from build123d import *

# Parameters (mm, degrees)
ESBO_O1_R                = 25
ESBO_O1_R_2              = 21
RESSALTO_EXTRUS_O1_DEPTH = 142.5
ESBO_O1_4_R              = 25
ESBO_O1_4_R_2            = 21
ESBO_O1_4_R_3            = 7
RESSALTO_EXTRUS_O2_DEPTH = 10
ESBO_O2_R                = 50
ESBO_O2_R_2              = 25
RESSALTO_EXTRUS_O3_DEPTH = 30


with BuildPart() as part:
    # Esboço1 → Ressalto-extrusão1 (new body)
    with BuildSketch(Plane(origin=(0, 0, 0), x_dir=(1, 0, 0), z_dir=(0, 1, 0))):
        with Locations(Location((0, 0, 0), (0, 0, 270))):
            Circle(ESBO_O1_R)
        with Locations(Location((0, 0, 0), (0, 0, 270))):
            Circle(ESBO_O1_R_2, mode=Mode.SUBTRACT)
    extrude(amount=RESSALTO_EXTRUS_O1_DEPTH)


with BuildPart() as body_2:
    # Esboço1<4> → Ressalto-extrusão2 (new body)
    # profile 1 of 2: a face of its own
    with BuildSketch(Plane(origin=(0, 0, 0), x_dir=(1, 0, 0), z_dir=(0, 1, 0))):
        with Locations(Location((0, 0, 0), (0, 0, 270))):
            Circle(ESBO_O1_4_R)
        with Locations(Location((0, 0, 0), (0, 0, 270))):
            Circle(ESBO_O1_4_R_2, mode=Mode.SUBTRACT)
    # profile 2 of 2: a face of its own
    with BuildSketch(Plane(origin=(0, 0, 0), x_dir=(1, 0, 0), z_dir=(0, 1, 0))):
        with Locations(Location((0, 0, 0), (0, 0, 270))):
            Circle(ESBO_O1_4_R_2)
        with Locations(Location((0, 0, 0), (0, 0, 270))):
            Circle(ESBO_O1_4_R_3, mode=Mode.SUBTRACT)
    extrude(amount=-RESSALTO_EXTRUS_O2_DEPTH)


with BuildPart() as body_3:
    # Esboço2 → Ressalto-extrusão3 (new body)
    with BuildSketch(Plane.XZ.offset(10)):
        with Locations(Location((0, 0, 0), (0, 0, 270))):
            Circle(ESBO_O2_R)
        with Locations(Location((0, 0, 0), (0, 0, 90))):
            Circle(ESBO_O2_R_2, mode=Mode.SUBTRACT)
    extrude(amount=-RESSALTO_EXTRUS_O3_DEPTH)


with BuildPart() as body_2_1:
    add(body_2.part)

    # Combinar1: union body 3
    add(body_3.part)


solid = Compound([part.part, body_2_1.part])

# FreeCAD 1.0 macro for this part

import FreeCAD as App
import Part
import Sketcher

doc = App.newDocument("Part")
params = doc.addObject("Spreadsheet::Sheet", "Params")
for row, (alias, value) in enumerate([
    ("sketch1_diameter", "50 mm"),
    ("sketch1_diameter2", "42 mm"),
    ("pad1_length", "142.5 mm"),
    ("sketch2_diameter", "50 mm"),
    ("sketch2_diameter2", "14 mm"),
    ("pad2_length", "10 mm"),
    ("sketch3_diameter", "100 mm"),
    ("sketch3_diameter2", "50 mm"),
    ("pad3_length", "30 mm"),
], start=1):
    params.set(f"A{row}", alias)
    params.set(f"B{row}", "=" + value)
    params.setAlias(f"B{row}", alias)

body = doc.addObject("PartDesign::Body", "Body")

# Sketch on XZ plane
sketch1 = body.newObject("Sketcher::SketchObject", "Sketch")
sketch1.AttachmentSupport = (doc.getObject("XZ_Plane"), [""])
sketch1.MapMode = "FlatFace"
sketch1.addGeometry(Part.Circle(App.Vector(0, 0, 0), App.Vector(0, 0, 1), 25), False)
sketch1.addGeometry(Part.Circle(App.Vector(0, 0, 0), App.Vector(0, 0, 1), 21), False)
sketch1.addConstraint(Sketcher.Constraint("Coincident", 0, 3, -1, 1))
sketch1.addConstraint(Sketcher.Constraint("Coincident", 1, 3, -1, 1))
sketch1.addConstraint(Sketcher.Constraint("Diameter", 0, 50.0))
sketch1.addConstraint(Sketcher.Constraint("Diameter", 1, 42.0))
sketch1.setExpression("Constraints[2]", "Params.sketch1_diameter")
sketch1.setExpression("Constraints[3]", "Params.sketch1_diameter2")
pad1 = body.newObject("PartDesign::Pad", "Pad")
pad1.Profile = sketch1
pad1.setExpression("Length", "Params.pad1_length")
pad1.Reversed = True
body2 = doc.addObject("PartDesign::Body", "Body001")

# Sketch on XZ plane
sketch2 = body2.newObject("Sketcher::SketchObject", "Sketch001")
sketch2.AttachmentSupport = (doc.getObject("XZ_Plane001"), [""])
sketch2.MapMode = "FlatFace"
sketch2.addGeometry(Part.Circle(App.Vector(0, 0, 0), App.Vector(0, 0, 1), 25), False)
sketch2.addGeometry(Part.Circle(App.Vector(0, 0, 0), App.Vector(0, 0, 1), 7), False)
sketch2.addConstraint(Sketcher.Constraint("Coincident", 0, 3, -1, 1))
sketch2.addConstraint(Sketcher.Constraint("Coincident", 1, 3, -1, 1))
sketch2.addConstraint(Sketcher.Constraint("Diameter", 0, 50.0))
sketch2.addConstraint(Sketcher.Constraint("Diameter", 1, 14.0))
sketch2.setExpression("Constraints[2]", "Params.sketch2_diameter")
sketch2.setExpression("Constraints[3]", "Params.sketch2_diameter2")
pad2 = body2.newObject("PartDesign::Pad", "Pad001")
pad2.Profile = sketch2
pad2.setExpression("Length", "Params.pad2_length")
body3 = doc.addObject("PartDesign::Body", "Body002")

# Sketch on XZ plane
sketch3 = body3.newObject("Sketcher::SketchObject", "Sketch002")
sketch3.AttachmentSupport = (doc.getObject("XZ_Plane002"), [""])
sketch3.MapMode = "FlatFace"
sketch3.AttachmentOffset = App.Placement(App.Vector(0, 0, 10), App.Rotation())
sketch3.addGeometry(Part.Circle(App.Vector(0, 0, 0), App.Vector(0, 0, 1), 50), False)
sketch3.addGeometry(Part.Circle(App.Vector(0, 0, 0), App.Vector(0, 0, 1), 25), False)
sketch3.addConstraint(Sketcher.Constraint("Coincident", 0, 3, -1, 1))
sketch3.addConstraint(Sketcher.Constraint("Coincident", 1, 3, -1, 1))
sketch3.addConstraint(Sketcher.Constraint("Diameter", 0, 100.0))
sketch3.addConstraint(Sketcher.Constraint("Diameter", 1, 50.0))
sketch3.setExpression("Constraints[2]", "Params.sketch3_diameter")
sketch3.setExpression("Constraints[3]", "Params.sketch3_diameter2")
pad3 = body3.newObject("PartDesign::Pad", "Pad002")
pad3.Profile = sketch3
pad3.setExpression("Length", "Params.pad3_length")
pad3.Reversed = True
doc.recompute()

boolean = body2.newObject("PartDesign::Boolean", "Boolean")
boolean.Type = "Fuse"
boolean.addObjects([body3])

doc.recompute()
